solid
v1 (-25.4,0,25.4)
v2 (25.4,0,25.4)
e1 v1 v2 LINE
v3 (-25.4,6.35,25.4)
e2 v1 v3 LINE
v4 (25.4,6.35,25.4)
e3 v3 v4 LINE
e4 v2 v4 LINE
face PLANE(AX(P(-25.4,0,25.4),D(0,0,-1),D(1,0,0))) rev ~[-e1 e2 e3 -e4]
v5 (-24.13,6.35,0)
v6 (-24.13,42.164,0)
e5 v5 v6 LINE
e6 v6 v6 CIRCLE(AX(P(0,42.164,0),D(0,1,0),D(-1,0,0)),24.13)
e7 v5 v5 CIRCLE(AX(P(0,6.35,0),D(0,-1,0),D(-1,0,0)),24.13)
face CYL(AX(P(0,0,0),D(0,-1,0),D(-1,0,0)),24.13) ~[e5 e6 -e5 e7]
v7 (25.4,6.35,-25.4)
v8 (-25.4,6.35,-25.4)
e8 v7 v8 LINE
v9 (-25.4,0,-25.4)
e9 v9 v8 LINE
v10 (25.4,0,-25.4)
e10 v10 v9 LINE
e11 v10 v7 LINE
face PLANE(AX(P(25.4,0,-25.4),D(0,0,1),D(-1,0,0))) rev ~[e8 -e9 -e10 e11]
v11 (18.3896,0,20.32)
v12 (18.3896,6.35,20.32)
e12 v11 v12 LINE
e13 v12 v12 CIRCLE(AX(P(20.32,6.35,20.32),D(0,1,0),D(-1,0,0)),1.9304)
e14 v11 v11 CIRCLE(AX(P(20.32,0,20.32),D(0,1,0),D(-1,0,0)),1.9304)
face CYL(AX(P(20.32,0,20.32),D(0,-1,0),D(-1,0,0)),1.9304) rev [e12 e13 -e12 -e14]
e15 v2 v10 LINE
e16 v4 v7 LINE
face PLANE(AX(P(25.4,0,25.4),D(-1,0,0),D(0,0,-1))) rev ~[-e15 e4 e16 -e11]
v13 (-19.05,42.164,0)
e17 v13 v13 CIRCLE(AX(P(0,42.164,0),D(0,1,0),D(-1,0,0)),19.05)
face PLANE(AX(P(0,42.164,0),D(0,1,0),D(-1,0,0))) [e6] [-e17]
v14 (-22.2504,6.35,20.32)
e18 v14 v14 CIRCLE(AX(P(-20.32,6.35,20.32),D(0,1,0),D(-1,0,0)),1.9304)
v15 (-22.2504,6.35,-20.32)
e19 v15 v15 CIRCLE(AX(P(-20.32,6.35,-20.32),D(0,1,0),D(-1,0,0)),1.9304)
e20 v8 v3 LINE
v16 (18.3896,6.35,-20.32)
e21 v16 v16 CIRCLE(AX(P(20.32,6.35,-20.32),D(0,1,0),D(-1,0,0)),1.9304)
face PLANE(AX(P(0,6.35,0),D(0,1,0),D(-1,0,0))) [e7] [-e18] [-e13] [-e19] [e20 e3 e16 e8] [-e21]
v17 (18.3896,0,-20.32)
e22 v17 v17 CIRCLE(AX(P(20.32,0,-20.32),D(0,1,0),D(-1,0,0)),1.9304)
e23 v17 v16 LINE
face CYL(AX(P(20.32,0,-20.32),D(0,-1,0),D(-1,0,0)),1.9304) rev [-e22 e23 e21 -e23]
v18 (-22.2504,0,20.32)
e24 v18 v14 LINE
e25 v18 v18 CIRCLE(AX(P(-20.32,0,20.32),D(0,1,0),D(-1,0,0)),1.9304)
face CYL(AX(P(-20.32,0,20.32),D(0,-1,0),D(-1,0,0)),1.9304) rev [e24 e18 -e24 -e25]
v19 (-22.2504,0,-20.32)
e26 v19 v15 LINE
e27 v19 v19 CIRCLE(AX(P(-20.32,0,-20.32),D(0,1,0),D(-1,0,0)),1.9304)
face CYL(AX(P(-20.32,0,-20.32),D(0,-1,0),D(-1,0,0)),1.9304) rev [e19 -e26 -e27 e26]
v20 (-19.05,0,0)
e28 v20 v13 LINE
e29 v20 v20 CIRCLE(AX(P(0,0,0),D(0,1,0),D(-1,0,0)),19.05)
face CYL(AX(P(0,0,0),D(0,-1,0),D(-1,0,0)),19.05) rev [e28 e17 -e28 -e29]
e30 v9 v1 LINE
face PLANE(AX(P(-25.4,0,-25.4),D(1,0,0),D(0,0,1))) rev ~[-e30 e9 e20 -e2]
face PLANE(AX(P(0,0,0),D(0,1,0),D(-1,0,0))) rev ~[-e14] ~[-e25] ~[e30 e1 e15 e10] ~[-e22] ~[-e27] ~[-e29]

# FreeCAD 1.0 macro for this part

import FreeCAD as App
import Part
import Sketcher
Q = App.Units.Quantity


def add_polygon(sketch, points):
    """Adds a closed chain of lines whose ends are joined by coincident constraints."""
    first, n = sketch.GeometryCount, len(points)
    for a, b in zip(points, points[1:] + points[:1]):
        sketch.addGeometry(Part.LineSegment(App.Vector(*a, 0), App.Vector(*b, 0)), False)
    for i in range(n):
        sketch.addConstraint(Sketcher.Constraint("Coincident", first + i, 2, first + (i + 1) % n, 1))

doc = App.newDocument("Part")
body = doc.addObject("PartDesign::Body", "Body")

# Sketch on XZ plane
sketch1 = body.newObject("Sketcher::SketchObject", "Sketch")
sketch1.AttachmentSupport = (doc.getObject("XZ_Plane"), [""])
sketch1.MapMode = "FlatFace"
sketch1.addGeometry([
    Part.Circle(App.Vector(0, 0, 0), App.Vector(0, 0, 1), 24),
    Part.Circle(App.Vector(0, 0, 0), App.Vector(0, 0, 1), 19),
], False)
sketch1.addConstraint([
    Sketcher.Constraint("Coincident", 0, 3, -1, 1),
    Sketcher.Constraint("Coincident", 1, 3, -1, 1),
    Sketcher.Constraint("Diameter", 0, Q("1.9 in")),
    Sketcher.Constraint("Diameter", 1, Q("1.5 in")),
])
pad1 = body.newObject("PartDesign::Pad", "Pad")
pad1.Profile = sketch1
pad1.Length = Q("1.66 in")
pad1.Reversed = True

# Sketch on XZ plane
sketch2 = body.newObject("Sketcher::SketchObject", "Sketch001")
sketch2.AttachmentSupport = (doc.getObject("XZ_Plane"), [""])
sketch2.MapMode = "FlatFace"
add_polygon(sketch2, [(-25, -25), (-25, 25), (25, 25), (25, -25)])  # lines 0-3
sketch2.addGeometry(Part.Circle(App.Vector(0, 0, 0), App.Vector(0, 0, 1), 19), False)  # 4
sketch2.addConstraint([
    Sketcher.Constraint("Vertical", 0),
    Sketcher.Constraint("Horizontal", 1),
    Sketcher.Constraint("Vertical", 2),
    Sketcher.Constraint("Horizontal", 3),
    Sketcher.Constraint("Coincident", 4, 3, -1, 1),
    Sketcher.Constraint("Symmetric", 0, 2, 2, 2, -1, 1),
    Sketcher.Constraint("Equal", 3, 0),
    Sketcher.Constraint("DistanceX", 1, 1, 1, 2, Q("2 in")),
    Sketcher.Constraint("Diameter", 4, Q("1.5 in")),
])
pad2 = body.newObject("PartDesign::Pad", "Pad001")
pad2.Profile = sketch2
pad2.Length = Q("0.25 in")
pad2.Reversed = True

# Sketch on XZ plane
sketch3 = body.newObject("Sketcher::SketchObject", "Sketch002")
sketch3.AttachmentSupport = (doc.getObject("XZ_Plane"), [""])
sketch3.MapMode = "FlatFace"
sketch3.addGeometry([
    Part.Circle(App.Vector(20.3, -20.3, 0), App.Vector(0, 0, 1), 1.9),
    Part.Circle(App.Vector(20.3, 20.3, 0), App.Vector(0, 0, 1), 1.9),
    Part.Circle(App.Vector(-20.3, -20.3, 0), App.Vector(0, 0, 1), 1.9),
    Part.Circle(App.Vector(-20.3, 20.3, 0), App.Vector(0, 0, 1), 1.9),
], False)
sketch3.addConstraint([
    Sketcher.Constraint("Equal", 0, 1),
    Sketcher.Constraint("Equal", 1, 2),
    Sketcher.Constraint("Equal", 2, 3),
    Sketcher.Constraint("Symmetric", 1, 3, 2, 3, -1, 1),
    Sketcher.Constraint("Symmetric", 0, 3, 3, 3, -1, 1),
    Sketcher.Constraint("Symmetric", 0, 3, 2, 3, -2),
    Sketcher.Constraint("Diameter", 0, Q("0.152 in")),
    Sketcher.Constraint("DistanceX", -1, 1, 0, 3, Q("0.8 in")),
    Sketcher.Constraint("DistanceY", 0, 3, -1, 1, Q("0.8 in")),
])
pocket1 = body.newObject("PartDesign::Pocket", "Pocket")
pocket1.Profile = sketch3
pocket1.Length = Q("0.25 in")

doc.recompute()
